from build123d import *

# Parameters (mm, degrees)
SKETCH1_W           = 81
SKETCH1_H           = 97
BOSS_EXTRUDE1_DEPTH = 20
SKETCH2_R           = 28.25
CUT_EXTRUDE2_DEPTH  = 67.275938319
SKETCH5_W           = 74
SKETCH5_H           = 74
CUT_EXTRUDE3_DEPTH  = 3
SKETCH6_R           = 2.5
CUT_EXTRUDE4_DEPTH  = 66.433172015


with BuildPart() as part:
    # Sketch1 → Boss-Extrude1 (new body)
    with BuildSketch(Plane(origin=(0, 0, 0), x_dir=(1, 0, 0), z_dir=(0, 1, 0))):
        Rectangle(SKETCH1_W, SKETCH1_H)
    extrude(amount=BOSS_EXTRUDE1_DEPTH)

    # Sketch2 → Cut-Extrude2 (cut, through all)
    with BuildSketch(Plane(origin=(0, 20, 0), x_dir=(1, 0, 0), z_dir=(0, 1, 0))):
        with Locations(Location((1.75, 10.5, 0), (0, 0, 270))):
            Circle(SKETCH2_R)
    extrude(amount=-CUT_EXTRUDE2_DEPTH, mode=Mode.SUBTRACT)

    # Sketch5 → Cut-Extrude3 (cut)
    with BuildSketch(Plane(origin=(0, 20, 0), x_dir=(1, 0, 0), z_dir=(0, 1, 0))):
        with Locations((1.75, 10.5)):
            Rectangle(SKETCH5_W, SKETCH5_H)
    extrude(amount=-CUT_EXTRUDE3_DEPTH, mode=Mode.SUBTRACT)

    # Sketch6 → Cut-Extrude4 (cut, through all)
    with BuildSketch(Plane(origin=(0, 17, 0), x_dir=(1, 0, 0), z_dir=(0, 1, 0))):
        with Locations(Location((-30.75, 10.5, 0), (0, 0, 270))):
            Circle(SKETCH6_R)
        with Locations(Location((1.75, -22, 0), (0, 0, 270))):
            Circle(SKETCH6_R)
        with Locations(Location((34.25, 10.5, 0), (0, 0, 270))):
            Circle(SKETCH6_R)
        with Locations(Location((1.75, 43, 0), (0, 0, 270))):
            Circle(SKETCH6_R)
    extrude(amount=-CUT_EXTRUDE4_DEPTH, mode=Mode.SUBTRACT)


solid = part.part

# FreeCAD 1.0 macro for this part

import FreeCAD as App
import Part
import Sketcher
from FreeCAD import Vector
Q = App.Units.Quantity


def add_polygon(sketch, points):
    """Adds a closed chain of lines whose ends are joined by coincident constraints."""
    first, n = sketch.GeometryCount, len(points)
    for a, b in zip(points, points[1:] + points[:1]):
        sketch.addGeometry(Part.LineSegment(App.Vector(*a, 0), App.Vector(*b, 0)), False)
    for i in range(n):
        sketch.addConstraint(Sketcher.Constraint("Coincident", first + i, 2, first + (i + 1) % n, 1))

doc = App.newDocument("Part")
body = doc.addObject("PartDesign::Body", "Body")

# Sketch on XZ plane
sketch1 = body.newObject("Sketcher::SketchObject", "Sketch")
sketch1.AttachmentSupport = (doc.getObject("XZ_Plane"), [""])
sketch1.MapMode = "FlatFace"
add_polygon(sketch1, [(-40.5, -48.5), (-40.5, 48.5), (40.5, 48.5), (40.5, -48.5)])  # lines 0-3
sketch1.addConstraint(Sketcher.Constraint("Vertical", 0))
sketch1.addConstraint(Sketcher.Constraint("Horizontal", 1))
sketch1.addConstraint(Sketcher.Constraint("Vertical", 2))
sketch1.addConstraint(Sketcher.Constraint("Horizontal", 3))
sketch1.addConstraint(Sketcher.Constraint("Symmetric", 0, 2, 2, 2, -1, 1))
sketch1.addConstraint(Sketcher.Constraint("DistanceX", 1, 1, 1, 2, Q("81 mm")))
sketch1.addConstraint(Sketcher.Constraint("DistanceY", 0, 1, 0, 2, Q("97 mm")))
pad1 = body.newObject("PartDesign::Pad", "Pad")
pad1.Profile = sketch1
pad1.Length = 20
pad1.Reversed = True

# Sketch on XZ plane
sketch2 = body.newObject("Sketcher::SketchObject", "Sketch001")
sketch2.AttachmentSupport = (doc.getObject("XZ_Plane"), [""])
sketch2.MapMode = "FlatFace"
sketch2.AttachmentOffset = App.Placement(Vector(0, 0, -20), App.Rotation())
sketch2.addGeometry(Part.Circle(Vector(1.75, -10.5, 0), Vector(0, 0, 1), 28.25), False)
sketch2.addConstraint(Sketcher.Constraint("Diameter", 0, Q("56.5 mm")))
sketch2.addConstraint(Sketcher.Constraint("DistanceY", 0, 3, -1, 1, Q("10.5 mm")))
sketch2.addConstraint(Sketcher.Constraint("DistanceX", -1, 1, 0, 3, Q("1.75 mm")))
pocket1 = body.newObject("PartDesign::Pocket", "Pocket")
pocket1.Profile = sketch2
pocket1.Type = "ThroughAll"
pocket1.Reversed = True

# Sketch on XZ plane
sketch3 = body.newObject("Sketcher::SketchObject", "Sketch002")
sketch3.AttachmentSupport = (doc.getObject("XZ_Plane"), [""])
sketch3.MapMode = "FlatFace"
sketch3.AttachmentOffset = App.Placement(Vector(0, 0, -20), App.Rotation())
add_polygon(sketch3, [(-35.25, -47.5), (-35.25, 26.5), (38.75, 26.5), (38.75, -47.5)])  # lines 0-3
sketch3.addConstraint(Sketcher.Constraint("Vertical", 0))
sketch3.addConstraint(Sketcher.Constraint("Horizontal", 1))
sketch3.addConstraint(Sketcher.Constraint("Vertical", 2))
sketch3.addConstraint(Sketcher.Constraint("Horizontal", 3))
sketch3.addConstraint(Sketcher.Constraint("Equal", 3, 0))
sketch3.addConstraint(Sketcher.Constraint("DistanceX", 1, 1, 1, 2, Q("74 mm")))
sketch3.addConstraint(Sketcher.Constraint("DistanceY", -1, 1, 0, 2, Q("26.5 mm")))
sketch3.addConstraint(Sketcher.Constraint("DistanceX", 0, 2, -1, 1, Q("35.25 mm")))
pocket2 = body.newObject("PartDesign::Pocket", "Pocket001")
pocket2.Profile = sketch3
pocket2.Length = 3
pocket2.Reversed = True

# Sketch on XZ plane
sketch4 = body.newObject("Sketcher::SketchObject", "Sketch003")
sketch4.AttachmentSupport = (doc.getObject("XZ_Plane"), [""])
sketch4.MapMode = "FlatFace"
sketch4.AttachmentOffset = App.Placement(Vector(0, 0, -17), App.Rotation())
sketch4.addGeometry(Part.Circle(Vector(-30.75, -10.5, 0), Vector(0, 0, 1), 2.5), False)
sketch4.addGeometry(Part.Circle(Vector(1.75, 22, 0), Vector(0, 0, 1), 2.5), False)
sketch4.addGeometry(Part.Circle(Vector(34.25, -10.5, 0), Vector(0, 0, 1), 2.5), False)
sketch4.addGeometry(Part.Circle(Vector(1.75, -43, 0), Vector(0, 0, 1), 2.5), False)
sketch4.addConstraint(Sketcher.Constraint("Equal", 0, 1))
sketch4.addConstraint(Sketcher.Constraint("Equal", 1, 2))
sketch4.addConstraint(Sketcher.Constraint("Equal", 2, 3))
sketch4.addConstraint(Sketcher.Constraint("Horizontal", 0, 3, 2, 3))
sketch4.addConstraint(Sketcher.Constraint("Vertical", 1, 3, 3, 3))
sketch4.addConstraint(Sketcher.Constraint("Diameter", 0, Q("5 mm")))
sketch4.addConstraint(Sketcher.Constraint("DistanceY", -1, 1, 1, 3, Q("22 mm")))
sketch4.addConstraint(Sketcher.Constraint("DistanceY", 3, 3, -1, 1, Q("43 mm")))
sketch4.addConstraint(Sketcher.Constraint("DistanceX", 0, 3, 2, 3, Q("65 mm")))
sketch4.addConstraint(Sketcher.Constraint("DistanceY", 0, 3, -1, 1, Q("10.5 mm")))
sketch4.addConstraint(Sketcher.Constraint("DistanceX", 0, 3, 1, 3, Q("32.5 mm")))
sketch4.addConstraint(Sketcher.Constraint("DistanceX", 0, 3, -1, 1, Q("30.75 mm")))
pocket3 = body.newObject("PartDesign::Pocket", "Pocket002")
pocket3.Profile = sketch4
pocket3.Type = "ThroughAll"
pocket3.Reversed = True

doc.recompute()
